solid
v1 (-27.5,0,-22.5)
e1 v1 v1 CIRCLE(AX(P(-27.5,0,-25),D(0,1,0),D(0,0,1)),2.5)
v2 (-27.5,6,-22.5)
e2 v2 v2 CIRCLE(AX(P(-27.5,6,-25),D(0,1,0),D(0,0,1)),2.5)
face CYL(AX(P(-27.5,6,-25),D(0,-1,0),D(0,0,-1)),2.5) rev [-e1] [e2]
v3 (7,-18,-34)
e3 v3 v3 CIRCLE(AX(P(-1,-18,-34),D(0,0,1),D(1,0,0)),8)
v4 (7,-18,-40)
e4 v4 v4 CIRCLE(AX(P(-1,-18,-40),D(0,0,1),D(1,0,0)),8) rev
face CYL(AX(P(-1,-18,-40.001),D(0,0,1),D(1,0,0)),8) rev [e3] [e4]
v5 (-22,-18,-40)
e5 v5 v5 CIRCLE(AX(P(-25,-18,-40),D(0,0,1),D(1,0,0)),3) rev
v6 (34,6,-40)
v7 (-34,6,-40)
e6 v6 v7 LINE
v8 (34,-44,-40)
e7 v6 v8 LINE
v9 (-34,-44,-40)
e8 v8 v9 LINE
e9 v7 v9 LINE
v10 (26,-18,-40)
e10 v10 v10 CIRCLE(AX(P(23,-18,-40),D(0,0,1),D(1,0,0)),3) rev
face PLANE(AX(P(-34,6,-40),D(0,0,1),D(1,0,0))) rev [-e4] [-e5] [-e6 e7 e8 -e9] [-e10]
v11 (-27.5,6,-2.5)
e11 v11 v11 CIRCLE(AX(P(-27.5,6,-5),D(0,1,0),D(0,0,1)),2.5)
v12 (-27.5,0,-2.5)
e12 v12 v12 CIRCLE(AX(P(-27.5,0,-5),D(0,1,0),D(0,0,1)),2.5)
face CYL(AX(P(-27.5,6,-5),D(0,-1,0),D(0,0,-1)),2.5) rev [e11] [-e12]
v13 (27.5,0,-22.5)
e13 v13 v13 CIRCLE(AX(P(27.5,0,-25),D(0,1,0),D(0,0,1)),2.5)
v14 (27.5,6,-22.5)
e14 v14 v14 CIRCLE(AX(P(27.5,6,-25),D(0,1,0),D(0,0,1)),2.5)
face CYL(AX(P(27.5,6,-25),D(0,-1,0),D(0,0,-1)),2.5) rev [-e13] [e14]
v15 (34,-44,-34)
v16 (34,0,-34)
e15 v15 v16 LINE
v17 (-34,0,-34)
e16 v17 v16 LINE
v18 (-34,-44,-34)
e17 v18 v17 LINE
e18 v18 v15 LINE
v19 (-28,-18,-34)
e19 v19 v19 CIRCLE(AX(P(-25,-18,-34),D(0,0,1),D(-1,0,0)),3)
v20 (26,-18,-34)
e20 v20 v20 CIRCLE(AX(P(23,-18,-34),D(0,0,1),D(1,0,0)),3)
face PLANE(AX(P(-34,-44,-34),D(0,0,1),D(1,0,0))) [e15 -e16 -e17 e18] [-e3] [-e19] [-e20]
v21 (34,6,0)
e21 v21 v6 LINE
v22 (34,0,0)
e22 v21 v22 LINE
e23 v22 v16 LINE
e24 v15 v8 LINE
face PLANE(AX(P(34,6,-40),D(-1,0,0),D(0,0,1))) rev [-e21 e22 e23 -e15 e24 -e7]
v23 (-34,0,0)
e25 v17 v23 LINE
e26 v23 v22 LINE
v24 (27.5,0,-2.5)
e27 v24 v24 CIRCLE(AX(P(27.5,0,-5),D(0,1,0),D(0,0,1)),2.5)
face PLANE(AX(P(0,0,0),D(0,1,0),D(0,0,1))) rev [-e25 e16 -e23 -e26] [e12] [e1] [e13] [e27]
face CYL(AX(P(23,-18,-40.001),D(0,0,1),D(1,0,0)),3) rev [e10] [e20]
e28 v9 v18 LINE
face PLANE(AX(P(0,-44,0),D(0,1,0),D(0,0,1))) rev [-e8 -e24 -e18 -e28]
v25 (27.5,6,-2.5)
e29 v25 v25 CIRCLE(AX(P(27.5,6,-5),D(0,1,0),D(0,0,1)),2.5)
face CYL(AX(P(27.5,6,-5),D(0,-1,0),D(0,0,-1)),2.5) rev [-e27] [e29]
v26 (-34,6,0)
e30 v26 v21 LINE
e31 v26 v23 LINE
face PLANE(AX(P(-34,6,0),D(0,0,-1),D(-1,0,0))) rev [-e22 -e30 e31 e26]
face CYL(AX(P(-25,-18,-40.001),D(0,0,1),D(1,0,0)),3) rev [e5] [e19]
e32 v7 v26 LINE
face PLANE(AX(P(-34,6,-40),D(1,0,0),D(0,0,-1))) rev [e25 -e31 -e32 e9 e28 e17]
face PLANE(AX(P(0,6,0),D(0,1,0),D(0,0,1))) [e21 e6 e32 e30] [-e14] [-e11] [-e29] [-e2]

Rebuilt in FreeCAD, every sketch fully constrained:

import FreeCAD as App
import Part
import Sketcher
from FreeCAD import Vector


def add_polygon(sketch, points):
    """Adds a closed chain of lines whose ends are joined by coincident constraints."""
    first, n = sketch.GeometryCount, len(points)
    for a, b in zip(points, points[1:] + points[:1]):
        sketch.addGeometry(Part.LineSegment(App.Vector(*a, 0), App.Vector(*b, 0)), False)
    for i in range(n):
        sketch.addConstraint(Sketcher.Constraint("Coincident", first + i, 2, first + (i + 1) % n, 1))

doc = App.newDocument("Part")
body = doc.addObject("PartDesign::Body", "Body")

# Sketch on XZ plane
sketch1 = doc.addObject("Sketcher::SketchObject", "Sketch")
body.addObject(sketch1)
sketch1.AttachmentSupport = (doc.XZ_Plane, [""])
sketch1.MapMode = "FlatFace"
add_polygon(sketch1, [(-34, -40), (-34, 0), (34, 0), (34, -40)])  # lines 0-3
sketch1.addGeometry(Part.Circle(Vector(-27.5, -5, 0), Vector(0, 0, 1), 2.5), False)  # 4
sketch1.addGeometry(Part.Circle(Vector(27.5, -5, 0), Vector(0, 0, 1), 2.5), False)  # 5
sketch1.addGeometry(Part.Circle(Vector(-27.5, -25, 0), Vector(0, 0, 1), 2.5), False)  # 6
sketch1.addGeometry(Part.Circle(Vector(27.5, -25, 0), Vector(0, 0, 1), 2.5), False)  # 7
sketch1.addConstraint(Sketcher.Constraint("Vertical", 0))
sketch1.addConstraint(Sketcher.Constraint("Horizontal", 1))
sketch1.addConstraint(Sketcher.Constraint("Vertical", 2))
sketch1.addConstraint(Sketcher.Constraint("Horizontal", 3))
sketch1.addConstraint(Sketcher.Constraint("Equal", 4, 5))
sketch1.addConstraint(Sketcher.Constraint("Equal", 5, 6))
sketch1.addConstraint(Sketcher.Constraint("Equal", 6, 7))
sketch1.addConstraint(Sketcher.Constraint("Symmetric", 0, 2, 1, 2, -1, 1))
sketch1.addConstraint(Sketcher.Constraint("Symmetric", 4, 3, 5, 3, -2))
sketch1.addConstraint(Sketcher.Constraint("Symmetric", 6, 3, 7, 3, -2))
sketch1.addConstraint(Sketcher.Constraint("Vertical", 4, 3, 6, 3))
sketch1.addConstraint(Sketcher.Constraint("Diameter", 4, 5.0))
sketch1.addConstraint(Sketcher.Constraint("DistanceX", 1, 1, 1, 2, 68.0))
sketch1.addConstraint(Sketcher.Constraint("DistanceY", 0, 1, 0, 2, 40.0))
sketch1.addConstraint(Sketcher.Constraint("DistanceY", 4, 3, -1, 1, 5.0))
sketch1.addConstraint(Sketcher.Constraint("DistanceY", 6, 3, -1, 1, 25.0))
sketch1.addConstraint(Sketcher.Constraint("DistanceX", 4, 3, 5, 3, 55.0))
pad1 = doc.addObject("PartDesign::Pad", "Pad")
body.addObject(pad1)
pad1.Profile = sketch1
pad1.Length = 6
pad1.Reversed = True

# Sketch on XZ plane
sketch2 = doc.addObject("Sketcher::SketchObject", "Sketch001")
body.addObject(sketch2)
sketch2.AttachmentSupport = (doc.XZ_Plane, [""])
sketch2.MapMode = "FlatFace"
sketch2.AttachmentOffset = App.Placement(Vector(0, 0, -6), App.Rotation())
add_polygon(sketch2, [(-34, -40), (-34, -34), (34, -34), (34, -40)])  # lines 0-3
sketch2.addConstraint(Sketcher.Constraint("Vertical", 0))
sketch2.addConstraint(Sketcher.Constraint("Horizontal", 1))
sketch2.addConstraint(Sketcher.Constraint("Vertical", 2))
sketch2.addConstraint(Sketcher.Constraint("Horizontal", 3))
sketch2.addConstraint(Sketcher.Constraint("DistanceX", 1, 1, 1, 2, 68.0))
sketch2.addConstraint(Sketcher.Constraint("DistanceY", 0, 1, 0, 2, 6.0))
sketch2.addConstraint(Sketcher.Constraint("DistanceX", 0, 2, -1, 1, 34.0))
sketch2.addConstraint(Sketcher.Constraint("DistanceY", 0, 2, -1, 1, 34.0))
pad2 = doc.addObject("PartDesign::Pad", "Pad001")
body.addObject(pad2)
pad2.Profile = sketch2
pad2.Length = 50

# Sketch on XY plane
sketch3 = doc.addObject("Sketcher::SketchObject", "Sketch002")
body.addObject(sketch3)
sketch3.AttachmentSupport = (doc.XY_Plane, [""])
sketch3.MapMode = "FlatFace"
sketch3.AttachmentOffset = App.Placement(Vector(0, 0, -34), App.Rotation())
sketch3.addGeometry(Part.Circle(Vector(-1, -18, 0), Vector(0, 0, 1), 8), False)
sketch3.addConstraint(Sketcher.Constraint("Diameter", 0, 16.0))
sketch3.addConstraint(Sketcher.Constraint("DistanceX", 0, 3, -1, 1, 1.0))
sketch3.addConstraint(Sketcher.Constraint("DistanceY", 0, 3, -1, 1, 18.0))
pocket1 = doc.addObject("PartDesign::Pocket", "Pocket")
body.addObject(pocket1)
pocket1.Profile = sketch3
pocket1.Type = "UpToFirst"

# Sketch on XY plane
sketch4 = doc.addObject("Sketcher::SketchObject", "Sketch003")
body.addObject(sketch4)
sketch4.AttachmentSupport = (doc.XY_Plane, [""])
sketch4.MapMode = "FlatFace"
sketch4.AttachmentOffset = App.Placement(Vector(0, 0, -34), App.Rotation())
sketch4.addGeometry(Part.Circle(Vector(23, -18, 0), Vector(0, 0, 1), 3), False)
sketch4.addConstraint(Sketcher.Constraint("Diameter", 0, 6.0))
sketch4.addConstraint(Sketcher.Constraint("DistanceX", -1, 1, 0, 3, 23.0))
sketch4.addConstraint(Sketcher.Constraint("DistanceY", 0, 3, -1, 1, 18.0))
pocket2 = doc.addObject("PartDesign::Pocket", "Pocket001")
body.addObject(pocket2)
pocket2.Profile = sketch4
pocket2.Type = "UpToFirst"

# Sketch on XY plane
sketch5 = doc.addObject("Sketcher::SketchObject", "Sketch004")
body.addObject(sketch5)
sketch5.AttachmentSupport = (doc.XY_Plane, [""])
sketch5.MapMode = "FlatFace"
sketch5.AttachmentOffset = App.Placement(Vector(0, 0, -34), App.Rotation())
sketch5.addGeometry(Part.Circle(Vector(-25, -18, 0), Vector(0, 0, 1), 3), False)
sketch5.addConstraint(Sketcher.Constraint("Diameter", 0, 6.0))
sketch5.addConstraint(Sketcher.Constraint("DistanceX", 0, 3, -1, 1, 25.0))
sketch5.addConstraint(Sketcher.Constraint("DistanceY", 0, 3, -1, 1, 18.0))
pocket3 = doc.addObject("PartDesign::Pocket", "Pocket002")
body.addObject(pocket3)
pocket3.Profile = sketch5
pocket3.Type = "UpToFirst"

doc.recompute()
